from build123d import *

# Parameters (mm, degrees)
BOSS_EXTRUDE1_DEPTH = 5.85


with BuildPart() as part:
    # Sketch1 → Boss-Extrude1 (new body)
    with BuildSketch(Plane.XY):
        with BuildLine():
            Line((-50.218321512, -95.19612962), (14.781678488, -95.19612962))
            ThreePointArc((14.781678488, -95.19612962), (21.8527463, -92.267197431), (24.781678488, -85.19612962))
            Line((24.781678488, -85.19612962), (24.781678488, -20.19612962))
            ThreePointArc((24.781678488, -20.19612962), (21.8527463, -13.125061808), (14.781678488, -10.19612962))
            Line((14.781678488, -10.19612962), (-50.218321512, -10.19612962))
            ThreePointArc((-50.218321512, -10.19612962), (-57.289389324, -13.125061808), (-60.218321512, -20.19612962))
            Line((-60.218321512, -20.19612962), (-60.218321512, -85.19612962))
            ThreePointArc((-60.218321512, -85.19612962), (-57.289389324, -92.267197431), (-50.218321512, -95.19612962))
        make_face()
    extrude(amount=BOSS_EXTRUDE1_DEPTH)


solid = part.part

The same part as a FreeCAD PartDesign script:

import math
import FreeCAD as App
import Part
import Sketcher
Q = App.Units.Quantity

doc = App.newDocument("Part")
body = doc.addObject("PartDesign::Body", "Body")

# Sketch on XY plane
sketch1 = body.newObject("Sketcher::SketchObject", "Sketch")
sketch1.AttachmentSupport = (doc.getObject("XY_Plane"), [""])
sketch1.MapMode = "FlatFace"
sketch1.addGeometry(Part.LineSegment(App.Vector(-50.218322, -95.19613, 0), App.Vector(14.781678, -95.19613, 0)), False)
sketch1.addGeometry(Part.ArcOfCircle(Part.Circle(App.Vector(14.781678, -85.19613, 0), App.Vector(0, 0, 1), 10), math.radians(-90), math.radians(0)), False)
sketch1.addGeometry(Part.LineSegment(App.Vector(24.781678, -85.19613, 0), App.Vector(24.781678, -20.19613, 0)), False)
sketch1.addGeometry(Part.ArcOfCircle(Part.Circle(App.Vector(14.781678, -20.19613, 0), App.Vector(0, 0, 1), 10), math.radians(0), math.radians(90)), False)
sketch1.addGeometry(Part.LineSegment(App.Vector(14.781678, -10.19613, 0), App.Vector(-50.218322, -10.19613, 0)), False)
sketch1.addGeometry(Part.ArcOfCircle(Part.Circle(App.Vector(-50.218322, -20.19613, 0), App.Vector(0, 0, 1), 10), math.radians(90), math.radians(180)), False)
sketch1.addGeometry(Part.LineSegment(App.Vector(-60.218322, -20.19613, 0), App.Vector(-60.218322, -85.19613, 0)), False)
sketch1.addGeometry(Part.ArcOfCircle(Part.Circle(App.Vector(-50.218322, -85.19613, 0), App.Vector(0, 0, 1), 10), math.radians(-180), math.radians(-90)), False)
sketch1.addConstraint(Sketcher.Constraint("Tangent", 0, 2, 1, 1))
sketch1.addConstraint(Sketcher.Constraint("Tangent", 1, 2, 2, 1))
sketch1.addConstraint(Sketcher.Constraint("Tangent", 2, 2, 3, 1))
sketch1.addConstraint(Sketcher.Constraint("Tangent", 3, 2, 4, 1))
sketch1.addConstraint(Sketcher.Constraint("Tangent", 4, 2, 5, 1))
sketch1.addConstraint(Sketcher.Constraint("Tangent", 5, 2, 6, 1))
sketch1.addConstraint(Sketcher.Constraint("Tangent", 6, 2, 7, 1))
sketch1.addConstraint(Sketcher.Constraint("Tangent", 7, 2, 0, 1))
sketch1.addConstraint(Sketcher.Constraint("Horizontal", 0))
sketch1.addConstraint(Sketcher.Constraint("Vertical", 2))
sketch1.addConstraint(Sketcher.Constraint("Horizontal", 4))
sketch1.addConstraint(Sketcher.Constraint("Vertical", 6))
sketch1.addConstraint(Sketcher.Constraint("Equal", 1, 3))
sketch1.addConstraint(Sketcher.Constraint("Equal", 3, 5))
sketch1.addConstraint(Sketcher.Constraint("Equal", 5, 7))
sketch1.addConstraint(Sketcher.Constraint("Equal", 4, 2))
sketch1.addConstraint(Sketcher.Constraint("Radius", 1, Q("10 mm")))
sketch1.addConstraint(Sketcher.Constraint("DistanceX", 0, 1, 0, 2, Q("65 mm")))
sketch1.addConstraint(Sketcher.Constraint("DistanceX", -1, 1, 1, 3, Q("14.781678 mm")))
sketch1.addConstraint(Sketcher.Constraint("DistanceY", 1, 3, -1, 1, Q("85.19613 mm")))
pad1 = body.newObject("PartDesign::Pad", "Pad")
pad1.Profile = sketch1
pad1.Length = 5.85

doc.recompute()
